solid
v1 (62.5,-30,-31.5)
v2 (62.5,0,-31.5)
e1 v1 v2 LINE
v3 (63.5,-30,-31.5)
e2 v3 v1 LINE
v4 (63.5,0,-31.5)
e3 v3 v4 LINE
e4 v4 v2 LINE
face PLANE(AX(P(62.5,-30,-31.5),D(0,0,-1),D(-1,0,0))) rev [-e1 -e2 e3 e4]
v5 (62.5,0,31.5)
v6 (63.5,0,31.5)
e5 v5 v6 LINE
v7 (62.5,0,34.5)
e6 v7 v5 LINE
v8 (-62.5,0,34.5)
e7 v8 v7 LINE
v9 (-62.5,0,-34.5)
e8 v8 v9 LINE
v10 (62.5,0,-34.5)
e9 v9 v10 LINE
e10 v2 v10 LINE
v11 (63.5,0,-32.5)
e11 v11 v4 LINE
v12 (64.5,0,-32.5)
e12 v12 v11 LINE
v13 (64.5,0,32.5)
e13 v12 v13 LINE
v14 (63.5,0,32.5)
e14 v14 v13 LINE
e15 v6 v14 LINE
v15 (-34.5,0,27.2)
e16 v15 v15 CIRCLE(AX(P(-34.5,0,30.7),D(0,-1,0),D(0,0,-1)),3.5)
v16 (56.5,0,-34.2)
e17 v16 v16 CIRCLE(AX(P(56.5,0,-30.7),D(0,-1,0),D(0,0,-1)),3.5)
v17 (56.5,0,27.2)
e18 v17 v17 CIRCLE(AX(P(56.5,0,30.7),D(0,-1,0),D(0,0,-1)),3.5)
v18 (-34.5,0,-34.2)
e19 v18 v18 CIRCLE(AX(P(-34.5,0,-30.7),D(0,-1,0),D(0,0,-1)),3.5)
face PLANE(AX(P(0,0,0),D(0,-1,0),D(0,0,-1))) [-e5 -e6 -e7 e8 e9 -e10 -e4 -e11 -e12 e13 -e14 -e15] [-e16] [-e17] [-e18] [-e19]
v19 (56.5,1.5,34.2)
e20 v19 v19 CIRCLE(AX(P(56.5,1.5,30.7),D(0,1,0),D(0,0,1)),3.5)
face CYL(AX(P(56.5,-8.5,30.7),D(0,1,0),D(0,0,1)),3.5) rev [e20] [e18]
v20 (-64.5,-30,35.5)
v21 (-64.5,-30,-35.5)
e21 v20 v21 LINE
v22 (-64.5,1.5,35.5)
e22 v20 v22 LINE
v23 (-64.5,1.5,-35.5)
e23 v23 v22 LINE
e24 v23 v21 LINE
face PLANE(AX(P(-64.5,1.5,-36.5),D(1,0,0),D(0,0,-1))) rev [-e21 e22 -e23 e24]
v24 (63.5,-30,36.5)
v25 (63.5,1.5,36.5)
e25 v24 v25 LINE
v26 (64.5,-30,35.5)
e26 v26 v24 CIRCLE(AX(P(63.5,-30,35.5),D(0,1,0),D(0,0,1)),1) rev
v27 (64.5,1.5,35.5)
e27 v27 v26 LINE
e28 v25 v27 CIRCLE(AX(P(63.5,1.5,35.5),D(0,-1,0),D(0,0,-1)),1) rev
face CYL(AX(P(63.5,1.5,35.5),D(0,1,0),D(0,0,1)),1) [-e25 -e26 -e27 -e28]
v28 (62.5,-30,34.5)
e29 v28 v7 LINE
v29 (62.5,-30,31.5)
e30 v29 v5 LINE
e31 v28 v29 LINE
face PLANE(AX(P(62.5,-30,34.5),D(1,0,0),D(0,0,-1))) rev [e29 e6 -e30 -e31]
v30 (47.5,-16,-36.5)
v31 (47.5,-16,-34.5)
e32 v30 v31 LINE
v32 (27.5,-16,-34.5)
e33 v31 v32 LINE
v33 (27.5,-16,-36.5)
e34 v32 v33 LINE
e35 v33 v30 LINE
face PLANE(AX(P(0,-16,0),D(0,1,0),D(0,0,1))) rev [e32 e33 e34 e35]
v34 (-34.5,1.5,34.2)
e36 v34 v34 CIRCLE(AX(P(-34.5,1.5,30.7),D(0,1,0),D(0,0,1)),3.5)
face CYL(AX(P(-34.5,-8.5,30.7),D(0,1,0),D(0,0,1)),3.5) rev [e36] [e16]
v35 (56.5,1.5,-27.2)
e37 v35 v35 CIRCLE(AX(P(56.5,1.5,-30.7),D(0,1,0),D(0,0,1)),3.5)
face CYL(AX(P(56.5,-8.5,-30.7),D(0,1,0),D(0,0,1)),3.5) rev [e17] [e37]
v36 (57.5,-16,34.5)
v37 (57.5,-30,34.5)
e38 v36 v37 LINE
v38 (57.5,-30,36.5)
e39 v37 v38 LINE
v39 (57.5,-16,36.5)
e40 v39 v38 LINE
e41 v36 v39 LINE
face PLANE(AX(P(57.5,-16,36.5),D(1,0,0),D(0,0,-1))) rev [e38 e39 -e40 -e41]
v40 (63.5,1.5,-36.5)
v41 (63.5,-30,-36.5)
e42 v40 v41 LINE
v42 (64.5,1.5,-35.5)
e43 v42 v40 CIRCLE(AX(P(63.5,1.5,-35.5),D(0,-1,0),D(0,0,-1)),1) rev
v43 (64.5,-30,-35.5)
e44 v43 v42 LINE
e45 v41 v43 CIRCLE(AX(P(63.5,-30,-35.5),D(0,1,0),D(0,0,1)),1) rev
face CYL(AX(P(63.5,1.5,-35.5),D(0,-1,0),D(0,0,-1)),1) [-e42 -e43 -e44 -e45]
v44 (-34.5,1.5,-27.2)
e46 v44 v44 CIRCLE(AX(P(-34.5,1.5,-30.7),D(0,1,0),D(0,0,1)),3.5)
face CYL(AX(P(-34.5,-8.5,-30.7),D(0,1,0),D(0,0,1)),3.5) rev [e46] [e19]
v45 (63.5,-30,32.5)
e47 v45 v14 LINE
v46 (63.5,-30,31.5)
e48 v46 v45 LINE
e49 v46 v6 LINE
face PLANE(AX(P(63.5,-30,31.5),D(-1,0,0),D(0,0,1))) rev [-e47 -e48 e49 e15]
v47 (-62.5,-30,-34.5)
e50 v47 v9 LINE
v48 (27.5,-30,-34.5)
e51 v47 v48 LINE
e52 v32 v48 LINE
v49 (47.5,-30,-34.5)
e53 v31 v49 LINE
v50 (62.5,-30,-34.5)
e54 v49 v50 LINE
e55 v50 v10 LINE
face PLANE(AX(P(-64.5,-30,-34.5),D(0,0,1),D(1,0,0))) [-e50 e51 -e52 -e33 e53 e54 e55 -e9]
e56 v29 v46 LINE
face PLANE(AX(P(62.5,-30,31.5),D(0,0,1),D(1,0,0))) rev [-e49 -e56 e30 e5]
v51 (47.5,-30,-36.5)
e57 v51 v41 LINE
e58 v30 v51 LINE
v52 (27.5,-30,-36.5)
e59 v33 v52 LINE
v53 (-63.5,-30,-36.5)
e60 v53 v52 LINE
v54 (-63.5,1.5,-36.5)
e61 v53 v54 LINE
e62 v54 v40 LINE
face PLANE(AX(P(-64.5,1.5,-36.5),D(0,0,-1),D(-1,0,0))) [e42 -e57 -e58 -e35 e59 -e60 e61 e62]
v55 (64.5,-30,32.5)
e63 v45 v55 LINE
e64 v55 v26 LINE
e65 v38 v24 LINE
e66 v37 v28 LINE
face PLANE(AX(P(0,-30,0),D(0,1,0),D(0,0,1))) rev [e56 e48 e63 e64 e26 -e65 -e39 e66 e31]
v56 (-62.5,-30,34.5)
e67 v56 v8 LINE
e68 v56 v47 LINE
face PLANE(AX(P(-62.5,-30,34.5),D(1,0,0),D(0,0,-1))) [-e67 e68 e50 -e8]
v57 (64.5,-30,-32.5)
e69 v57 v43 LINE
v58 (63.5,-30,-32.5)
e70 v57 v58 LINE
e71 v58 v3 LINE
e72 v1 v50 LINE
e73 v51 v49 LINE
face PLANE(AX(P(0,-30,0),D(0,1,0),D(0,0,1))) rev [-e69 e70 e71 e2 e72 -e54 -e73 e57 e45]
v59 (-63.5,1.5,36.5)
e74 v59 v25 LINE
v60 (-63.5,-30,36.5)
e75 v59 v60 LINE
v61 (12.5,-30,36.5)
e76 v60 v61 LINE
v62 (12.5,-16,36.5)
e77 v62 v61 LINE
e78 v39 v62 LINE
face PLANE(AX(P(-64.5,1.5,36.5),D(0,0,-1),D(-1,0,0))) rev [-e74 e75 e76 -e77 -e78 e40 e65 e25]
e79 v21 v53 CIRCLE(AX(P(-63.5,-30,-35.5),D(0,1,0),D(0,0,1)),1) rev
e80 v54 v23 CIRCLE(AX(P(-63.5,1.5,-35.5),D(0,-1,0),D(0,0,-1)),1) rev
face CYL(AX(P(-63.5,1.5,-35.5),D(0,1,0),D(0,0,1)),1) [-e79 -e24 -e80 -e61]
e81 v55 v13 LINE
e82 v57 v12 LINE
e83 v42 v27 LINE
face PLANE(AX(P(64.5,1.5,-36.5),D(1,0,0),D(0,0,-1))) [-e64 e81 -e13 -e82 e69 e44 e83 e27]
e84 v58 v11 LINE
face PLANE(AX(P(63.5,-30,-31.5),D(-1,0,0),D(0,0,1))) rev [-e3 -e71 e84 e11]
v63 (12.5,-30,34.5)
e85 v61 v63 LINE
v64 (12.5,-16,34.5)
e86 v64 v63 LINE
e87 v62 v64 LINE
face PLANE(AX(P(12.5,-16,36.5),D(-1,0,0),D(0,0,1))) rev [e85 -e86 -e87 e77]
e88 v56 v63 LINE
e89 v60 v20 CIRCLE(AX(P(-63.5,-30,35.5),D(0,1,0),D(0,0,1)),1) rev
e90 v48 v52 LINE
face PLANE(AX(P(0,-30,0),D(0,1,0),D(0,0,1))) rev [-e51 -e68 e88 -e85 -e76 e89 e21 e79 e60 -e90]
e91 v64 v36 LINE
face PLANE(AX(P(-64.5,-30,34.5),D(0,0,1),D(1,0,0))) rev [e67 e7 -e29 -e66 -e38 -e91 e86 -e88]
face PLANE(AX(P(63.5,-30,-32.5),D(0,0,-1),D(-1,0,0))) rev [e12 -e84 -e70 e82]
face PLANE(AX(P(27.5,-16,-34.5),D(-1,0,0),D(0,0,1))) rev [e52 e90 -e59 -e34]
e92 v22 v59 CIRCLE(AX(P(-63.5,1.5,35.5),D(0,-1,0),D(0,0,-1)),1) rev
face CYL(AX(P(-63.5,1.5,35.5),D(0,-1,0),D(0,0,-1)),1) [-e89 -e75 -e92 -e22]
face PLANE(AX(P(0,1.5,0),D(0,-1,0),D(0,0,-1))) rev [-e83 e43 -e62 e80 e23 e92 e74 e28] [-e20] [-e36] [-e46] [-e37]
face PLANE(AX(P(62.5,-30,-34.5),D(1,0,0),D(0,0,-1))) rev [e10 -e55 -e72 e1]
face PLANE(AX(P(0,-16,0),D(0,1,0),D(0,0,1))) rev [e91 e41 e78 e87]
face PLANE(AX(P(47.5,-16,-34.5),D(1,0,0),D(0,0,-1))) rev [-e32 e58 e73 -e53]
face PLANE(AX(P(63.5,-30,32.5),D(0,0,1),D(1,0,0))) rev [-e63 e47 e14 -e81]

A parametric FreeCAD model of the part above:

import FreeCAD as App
import Part
import Sketcher
from FreeCAD import Vector
Q = App.Units.Quantity


def edges_at(feature, points):
    """Names of the edges that pass closest to the given points."""
    edges = feature.Shape.Edges
    near = lambda p: min(range(len(edges)), key=lambda i: edges[i].distToShape(Part.Vertex(*p))[0])
    return sorted({f"Edge{near(p) + 1}" for p in points})

doc = App.newDocument("Part")
body = doc.addObject("PartDesign::Body", "Body")

sketch1 = body.newObject("Sketcher::SketchObject", "Sketch")
sketch1.AttachmentSupport = (doc.getObject("XZ_Plane"), [""])
sketch1.MapMode = "FlatFace"
sketch1.addGeometry([
    Part.LineSegment(Vector(-64, -36, 0), Vector(-64, 36, 0)),
    Part.LineSegment(Vector(-64, 36, 0), Vector(64, 36, 0)),
    Part.LineSegment(Vector(64, 36, 0), Vector(64, -36, 0)),
    Part.LineSegment(Vector(64, -36, 0), Vector(-64, -36, 0)),
], False)
sketch1.addConstraint([
    Sketcher.Constraint("Coincident", 0, 2, 1, 1),
    Sketcher.Constraint("Coincident", 1, 2, 2, 1),
    Sketcher.Constraint("Coincident", 2, 2, 3, 1),
    Sketcher.Constraint("Coincident", 3, 2, 0, 1),
    Sketcher.Constraint("Vertical", 0),
    Sketcher.Constraint("Horizontal", 1),
    Sketcher.Constraint("Vertical", 2),
    Sketcher.Constraint("Horizontal", 3),
    Sketcher.Constraint("Symmetric", 0, 2, 2, 2, -1, 1),
    Sketcher.Constraint("DistanceX", 1, 1, 1, 2, Q("129 mm")),
    Sketcher.Constraint("DistanceY", 0, 1, 0, 2, Q("73 mm")),
])
pad1 = body.newObject("PartDesign::Pad", "Pad")
pad1.Profile = sketch1
pad1.Length = 1.5
pad1.Reversed = True

sketch2 = body.newObject("Sketcher::SketchObject", "Sketch001")
sketch2.AttachmentSupport = (doc.getObject("XZ_Plane"), [""])
sketch2.MapMode = "FlatFace"
sketch2.addGeometry([
    Part.LineSegment(Vector(-64.5, -34.5, 0), Vector(-64.5, 34.5, 0)),
    Part.LineSegment(Vector(-64.5, 34.5, 0), Vector(-62.5, 34.5, 0)),
    Part.LineSegment(Vector(-62.5, 34.5, 0), Vector(-62.5, -34.5, 0)),
    Part.LineSegment(Vector(-62.5, -34.5, 0), Vector(-64.5, -34.5, 0)),
], False)
sketch2.addConstraint([
    Sketcher.Constraint("Coincident", 0, 2, 1, 1),
    Sketcher.Constraint("Coincident", 1, 2, 2, 1),
    Sketcher.Constraint("Coincident", 2, 2, 3, 1),
    Sketcher.Constraint("Coincident", 3, 2, 0, 1),
    Sketcher.Constraint("Vertical", 0),
    Sketcher.Constraint("Horizontal", 1),
    Sketcher.Constraint("Vertical", 2),
    Sketcher.Constraint("Horizontal", 3),
    Sketcher.Constraint("DistanceX", 1, 1, 1, 2, Q("2 mm")),
    Sketcher.Constraint("DistanceY", 0, 1, 0, 2, Q("69 mm")),
    Sketcher.Constraint("DistanceX", 0, 2, -1, 1, Q("64.5 mm")),
    Sketcher.Constraint("DistanceY", -1, 1, 0, 2, Q("34.5 mm")),
])
pad2 = body.newObject("PartDesign::Pad", "Pad001")
pad2.Profile = sketch2
pad2.Length = 30

sketch3 = body.newObject("Sketcher::SketchObject", "Sketch002")
sketch3.AttachmentSupport = (doc.getObject("XZ_Plane"), [""])
sketch3.MapMode = "FlatFace"
sketch3.addGeometry([
    Part.LineSegment(Vector(-64.5, -36.5, 0), Vector(-64.5, -34.5, 0)),
    Part.LineSegment(Vector(-64.5, -34.5, 0), Vector(64.5, -34.5, 0)),
    Part.LineSegment(Vector(64.5, -34.5, 0), Vector(64.5, -36.5, 0)),
    Part.LineSegment(Vector(64.5, -36.5, 0), Vector(-64.5, -36.5, 0)),
], False)
sketch3.addConstraint([
    Sketcher.Constraint("Coincident", 0, 2, 1, 1),
    Sketcher.Constraint("Coincident", 1, 2, 2, 1),
    Sketcher.Constraint("Coincident", 2, 2, 3, 1),
    Sketcher.Constraint("Coincident", 3, 2, 0, 1),
    Sketcher.Constraint("Vertical", 0),
    Sketcher.Constraint("Horizontal", 1),
    Sketcher.Constraint("Vertical", 2),
    Sketcher.Constraint("Horizontal", 3),
    Sketcher.Constraint("DistanceX", 1, 1, 1, 2, Q("129 mm")),
    Sketcher.Constraint("DistanceY", 0, 1, 0, 2, Q("2 mm")),
    Sketcher.Constraint("DistanceX", 0, 2, -1, 1, Q("64.5 mm")),
    Sketcher.Constraint("DistanceY", 0, 2, -1, 1, Q("34.5 mm")),
])
pad3 = body.newObject("PartDesign::Pad", "Pad002")
pad3.Profile = sketch3
pad3.Length = 30

sketch4 = body.newObject("Sketcher::SketchObject", "Sketch003")
sketch4.AttachmentSupport = (doc.getObject("XZ_Plane"), [""])
sketch4.MapMode = "FlatFace"
sketch4.addGeometry([
    Part.LineSegment(Vector(-64.5, 34.5, 0), Vector(-64.5, 36.5, 0)),
    Part.LineSegment(Vector(-64.5, 36.5, 0), Vector(64.5, 36.5, 0)),
    Part.LineSegment(Vector(64.5, 36.5, 0), Vector(64.5, 34.5, 0)),
    Part.LineSegment(Vector(64.5, 34.5, 0), Vector(-64.5, 34.5, 0)),
], False)
sketch4.addConstraint([
    Sketcher.Constraint("Coincident", 0, 2, 1, 1),
    Sketcher.Constraint("Coincident", 1, 2, 2, 1),
    Sketcher.Constraint("Coincident", 2, 2, 3, 1),
    Sketcher.Constraint("Coincident", 3, 2, 0, 1),
    Sketcher.Constraint("Vertical", 0),
    Sketcher.Constraint("Horizontal", 1),
    Sketcher.Constraint("Vertical", 2),
    Sketcher.Constraint("Horizontal", 3),
    Sketcher.Constraint("DistanceX", 1, 1, 1, 2, Q("129 mm")),
    Sketcher.Constraint("DistanceY", 0, 1, 0, 2, Q("2 mm")),
    Sketcher.Constraint("DistanceX", 0, 2, -1, 1, Q("64.5 mm")),
    Sketcher.Constraint("DistanceY", -1, 1, 0, 2, Q("36.5 mm")),
])
pad4 = body.newObject("PartDesign::Pad", "Pad003")
pad4.Profile = sketch4
pad4.Length = 30

sketch5 = body.newObject("Sketcher::SketchObject", "Sketch004")
sketch5.AttachmentSupport = (doc.getObject("XZ_Plane"), [""])
sketch5.MapMode = "FlatFace"
sketch5.AttachmentOffset = App.Placement(Vector(0, 0, 30), App.Rotation())
sketch5.addGeometry([
    Part.LineSegment(Vector(12.5, 36.5, 0), Vector(12.5, 34.5, 0)),
    Part.LineSegment(Vector(12.5, 34.5, 0), Vector(57.5, 34.5, 0)),
    Part.LineSegment(Vector(57.5, 34.5, 0), Vector(57.5, 36.5, 0)),
    Part.LineSegment(Vector(57.5, 36.5, 0), Vector(12.5, 36.5, 0)),
], False)
sketch5.addConstraint([
    Sketcher.Constraint("Coincident", 0, 2, 1, 1),
    Sketcher.Constraint("Coincident", 1, 2, 2, 1),
    Sketcher.Constraint("Coincident", 2, 2, 3, 1),
    Sketcher.Constraint("Coincident", 3, 2, 0, 1),
    Sketcher.Constraint("Vertical", 0),
    Sketcher.Constraint("Horizontal", 1),
    Sketcher.Constraint("Vertical", 2),
    Sketcher.Constraint("Horizontal", 3),
    Sketcher.Constraint("DistanceX", 1, 1, 1, 2, Q("45 mm")),
    Sketcher.Constraint("DistanceY", 0, 2, 0, 1, Q("2 mm")),
    Sketcher.Constraint("DistanceX", -1, 1, 0, 2, Q("12.5 mm")),
    Sketcher.Constraint("DistanceY", -1, 1, 0, 2, Q("34.5 mm")),
])
pocket1 = body.newObject("PartDesign::Pocket", "Pocket")
pocket1.Profile = sketch5
pocket1.Length = 14

sketch6 = body.newObject("Sketcher::SketchObject", "Sketch005")
sketch6.AttachmentSupport = (doc.getObject("XZ_Plane"), [""])
sketch6.MapMode = "FlatFace"
sketch6.AttachmentOffset = App.Placement(Vector(0, 0, 30), App.Rotation())
sketch6.addGeometry([
    Part.LineSegment(Vector(27.5, -34.5, 0), Vector(27.5, -36.5, 0)),
    Part.LineSegment(Vector(27.5, -36.5, 0), Vector(47.5, -36.5, 0)),
    Part.LineSegment(Vector(47.5, -36.5, 0), Vector(47.5, -34.5, 0)),
    Part.LineSegment(Vector(47.5, -34.5, 0), Vector(27.5, -34.5, 0)),
], False)
sketch6.addConstraint([
    Sketcher.Constraint("Coincident", 0, 2, 1, 1),
    Sketcher.Constraint("Coincident", 1, 2, 2, 1),
    Sketcher.Constraint("Coincident", 2, 2, 3, 1),
    Sketcher.Constraint("Coincident", 3, 2, 0, 1),
    Sketcher.Constraint("Vertical", 0),
    Sketcher.Constraint("Horizontal", 1),
    Sketcher.Constraint("Vertical", 2),
    Sketcher.Constraint("Horizontal", 3),
    Sketcher.Constraint("DistanceX", 1, 1, 1, 2, Q("20 mm")),
    Sketcher.Constraint("DistanceY", 0, 2, 0, 1, Q("2 mm")),
    Sketcher.Constraint("DistanceX", -1, 1, 0, 2, Q("27.5 mm")),
    Sketcher.Constraint("DistanceY", 0, 2, -1, 1, Q("36.5 mm")),
])
pocket2 = body.newObject("PartDesign::Pocket", "Pocket001")
pocket2.Profile = sketch6
pocket2.Length = 14
doc.recompute()

fillet = body.newObject("PartDesign::Fillet", "Fillet")
fillet.Base = (pocket2, edges_at(pocket2, [(-64.5, -14.25, -36.5)]))
fillet.Radius = 1
doc.recompute()

fillet2 = body.newObject("PartDesign::Fillet", "Fillet001")
fillet2.Base = (fillet, edges_at(fillet, [(-64.5, -14.25, 36.5)]))
fillet2.Radius = 1
doc.recompute()

fillet3 = body.newObject("PartDesign::Fillet", "Fillet002")
fillet3.Base = (fillet2, edges_at(fillet2, [(64.5, -14.25, 36.5)]))
fillet3.Radius = 1

sketch7 = body.newObject("Sketcher::SketchObject", "Sketch006")
sketch7.AttachmentSupport = (doc.getObject("XZ_Plane"), [""])
sketch7.MapMode = "FlatFace"
sketch7.AttachmentOffset = App.Placement(Vector(0, 0, -1.5), App.Rotation())
sketch7.addGeometry([
    Part.Circle(Vector(-34.5, -30.7, 0), Vector(0, 0, 1), 3.5),
    Part.Circle(Vector(56.5, -30.7, 0), Vector(0, 0, 1), 3.5),
    Part.Circle(Vector(-34.5, 30.7, 0), Vector(0, 0, 1), 3.5),
    Part.Circle(Vector(56.5, 30.7, 0), Vector(0, 0, 1), 3.5),
], False)
sketch7.addConstraint([
    Sketcher.Constraint("Equal", 0, 1),
    Sketcher.Constraint("Equal", 1, 2),
    Sketcher.Constraint("Equal", 2, 3),
    Sketcher.Constraint("Symmetric", 0, 3, 2, 3, -1),
    Sketcher.Constraint("Symmetric", 1, 3, 3, 3, -1),
    Sketcher.Constraint("Horizontal", 0, 3, 1, 3),
    Sketcher.Constraint("Diameter", 0, Q("7 mm")),
    Sketcher.Constraint("DistanceX", 0, 3, 1, 3, Q("91 mm")),
    Sketcher.Constraint("DistanceX", 0, 3, -1, 1, Q("34.5 mm")),
    Sketcher.Constraint("DistanceY", 0, 3, -1, 1, Q("30.7 mm")),
])
pocket3 = body.newObject("PartDesign::Pocket", "Pocket002")
pocket3.Profile = sketch7
pocket3.Length = 10
pocket3.Reversed = True
doc.recompute()

fillet4 = body.newObject("PartDesign::Fillet", "Fillet003")
fillet4.Base = (pocket3, edges_at(pocket3, [(64.5, -14.25, -36.5)]))
fillet4.Radius = 1

sketch8 = body.newObject("Sketcher::SketchObject", "Sketch007")
sketch8.AttachmentSupport = (doc.getObject("XZ_Plane"), [""])
sketch8.MapMode = "FlatFace"
sketch8.addGeometry([
    Part.LineSegment(Vector(64.5, 34.5, 0), Vector(62.5, 34.5, 0)),
    Part.LineSegment(Vector(62.5, 34.5, 0), Vector(62.5, 31.5, 0)),
    Part.LineSegment(Vector(62.5, 31.5, 0), Vector(63.5, 31.5, 0)),
    Part.LineSegment(Vector(63.5, 31.5, 0), Vector(63.5, 32.5, 0)),
    Part.LineSegment(Vector(63.5, 32.5, 0), Vector(64.5, 32.5, 0)),
    Part.LineSegment(Vector(64.5, 32.5, 0), Vector(64.5, 34.5, 0)),
    Part.LineSegment(Vector(62.5, -31.5, 0), Vector(62.5, -34.5, 0)),
    Part.LineSegment(Vector(62.5, -34.5, 0), Vector(64.5, -34.5, 0)),
    Part.LineSegment(Vector(64.5, -34.5, 0), Vector(64.5, -32.5, 0)),
    Part.LineSegment(Vector(64.5, -32.5, 0), Vector(63.5, -32.5, 0)),
    Part.LineSegment(Vector(63.5, -32.5, 0), Vector(63.5, -31.5, 0)),
    Part.LineSegment(Vector(63.5, -31.5, 0), Vector(62.5, -31.5, 0)),
], False)
sketch8.addConstraint([
    Sketcher.Constraint("Coincident", 0, 2, 1, 1),
    Sketcher.Constraint("Coincident", 1, 2, 2, 1),
    Sketcher.Constraint("Coincident", 2, 2, 3, 1),
    Sketcher.Constraint("Coincident", 3, 2, 4, 1),
    Sketcher.Constraint("Coincident", 4, 2, 5, 1),
    Sketcher.Constraint("Coincident", 5, 2, 0, 1),
    Sketcher.Constraint("Coincident", 6, 2, 7, 1),
    Sketcher.Constraint("Coincident", 7, 2, 8, 1),
    Sketcher.Constraint("Coincident", 8, 2, 9, 1),
    Sketcher.Constraint("Coincident", 9, 2, 10, 1),
    Sketcher.Constraint("Coincident", 10, 2, 11, 1),
    Sketcher.Constraint("Coincident", 11, 2, 6, 1),
    Sketcher.Constraint("Horizontal", 0),
    Sketcher.Constraint("Vertical", 1),
    Sketcher.Constraint("Horizontal", 2),
    Sketcher.Constraint("Vertical", 3),
    Sketcher.Constraint("Horizontal", 4),
    Sketcher.Constraint("Vertical", 5),
    Sketcher.Constraint("Vertical", 6),
    Sketcher.Constraint("Horizontal", 7),
    Sketcher.Constraint("Vertical", 8),
    Sketcher.Constraint("Horizontal", 9),
    Sketcher.Constraint("Vertical", 10),
    Sketcher.Constraint("Horizontal", 11),
    Sketcher.Constraint("Symmetric", 0, 2, 6, 2, -1),
    Sketcher.Constraint("Symmetric", 4, 2, 8, 2, -1),
    Sketcher.Constraint("Symmetric", 2, 2, 10, 2, -1),
    Sketcher.Constraint("Equal", 2, 4),
    Sketcher.Constraint("Equal", 11, 3),
    Sketcher.Constraint("Equal", 7, 5),
    Sketcher.Constraint("DistanceX", 0, 2, 0, 1, Q("2 mm")),
    Sketcher.Constraint("DistanceY", 6, 2, 1, 2, Q("66 mm")),
    Sketcher.Constraint("DistanceX", -1, 1, 0, 2, Q("62.5 mm")),
])
pad5 = body.newObject("PartDesign::Pad", "Pad004")
pad5.Profile = sketch8
pad5.Length = 30

doc.recompute()
